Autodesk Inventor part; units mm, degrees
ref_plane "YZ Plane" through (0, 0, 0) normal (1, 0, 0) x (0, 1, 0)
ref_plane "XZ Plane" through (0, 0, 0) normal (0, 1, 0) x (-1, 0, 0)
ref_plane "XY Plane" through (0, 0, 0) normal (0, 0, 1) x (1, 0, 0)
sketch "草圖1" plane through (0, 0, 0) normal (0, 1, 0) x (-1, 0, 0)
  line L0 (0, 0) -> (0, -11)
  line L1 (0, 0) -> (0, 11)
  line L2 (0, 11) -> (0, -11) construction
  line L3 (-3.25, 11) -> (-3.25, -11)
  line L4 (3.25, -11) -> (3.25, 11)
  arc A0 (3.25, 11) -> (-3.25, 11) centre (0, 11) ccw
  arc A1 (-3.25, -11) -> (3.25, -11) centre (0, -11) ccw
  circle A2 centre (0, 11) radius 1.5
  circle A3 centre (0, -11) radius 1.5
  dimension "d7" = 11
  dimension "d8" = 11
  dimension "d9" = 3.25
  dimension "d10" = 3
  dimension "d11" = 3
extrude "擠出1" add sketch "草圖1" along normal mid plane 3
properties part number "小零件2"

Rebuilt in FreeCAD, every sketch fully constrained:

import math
import FreeCAD as App
import Part
import Sketcher
from FreeCAD import Vector
Q = App.Units.Quantity

doc = App.newDocument("Part")
body = doc.addObject("PartDesign::Body", "Body")

sketch1 = doc.addObject("Sketcher::SketchObject", "Sketch")
body.addObject(sketch1)
sketch1.AttachmentSupport = (doc.XZ_Plane, [""])
sketch1.MapMode = "FlatFace"
sketch1.addGeometry([
    Part.ArcOfCircle(Part.Circle(Vector(0, 11, 0), Vector(0, 0, 1), 3.2), math.radians(0), math.radians(180)),
    Part.LineSegment(Vector(3.2, 11, 0), Vector(3.2, -11, 0)),
    Part.ArcOfCircle(Part.Circle(Vector(0, -11, 0), Vector(0, 0, 1), 3.2), math.radians(180), math.radians(360)),
    Part.LineSegment(Vector(-3.2, -11, 0), Vector(-3.2, 11, 0)),
    Part.Circle(Vector(0, -11, 0), Vector(0, 0, 1), 1.5),
    Part.Circle(Vector(0, 11, 0), Vector(0, 0, 1), 1.5),
], False)
sketch1.addConstraint([
    Sketcher.Constraint("Tangent", 0, 1, 1, 1),
    Sketcher.Constraint("Tangent", 1, 2, 2, 2),
    Sketcher.Constraint("Tangent", 2, 1, 3, 1),
    Sketcher.Constraint("Tangent", 3, 2, 0, 2),
    Sketcher.Constraint("Vertical", 1),
    Sketcher.Constraint("Vertical", 3),
    Sketcher.Constraint("Coincident", 4, 3, 2, 3),
    Sketcher.Constraint("Coincident", 5, 3, 0, 3),
    Sketcher.Constraint("Equal", 4, 5),
    Sketcher.Constraint("Symmetric", 0, 3, 2, 3, -1, 1),
    Sketcher.Constraint("Diameter", 4, Q("3 mm")),
    Sketcher.Constraint("Radius", 0, Q("3.25 mm")),
    Sketcher.Constraint("DistanceY", -1, 1, 0, 3, Q("11 mm")),
])
pad1 = doc.addObject("PartDesign::Pad", "Pad")
body.addObject(pad1)
pad1.Profile = sketch1
pad1.Length = 3
pad1.Midplane = True

doc.recompute()
